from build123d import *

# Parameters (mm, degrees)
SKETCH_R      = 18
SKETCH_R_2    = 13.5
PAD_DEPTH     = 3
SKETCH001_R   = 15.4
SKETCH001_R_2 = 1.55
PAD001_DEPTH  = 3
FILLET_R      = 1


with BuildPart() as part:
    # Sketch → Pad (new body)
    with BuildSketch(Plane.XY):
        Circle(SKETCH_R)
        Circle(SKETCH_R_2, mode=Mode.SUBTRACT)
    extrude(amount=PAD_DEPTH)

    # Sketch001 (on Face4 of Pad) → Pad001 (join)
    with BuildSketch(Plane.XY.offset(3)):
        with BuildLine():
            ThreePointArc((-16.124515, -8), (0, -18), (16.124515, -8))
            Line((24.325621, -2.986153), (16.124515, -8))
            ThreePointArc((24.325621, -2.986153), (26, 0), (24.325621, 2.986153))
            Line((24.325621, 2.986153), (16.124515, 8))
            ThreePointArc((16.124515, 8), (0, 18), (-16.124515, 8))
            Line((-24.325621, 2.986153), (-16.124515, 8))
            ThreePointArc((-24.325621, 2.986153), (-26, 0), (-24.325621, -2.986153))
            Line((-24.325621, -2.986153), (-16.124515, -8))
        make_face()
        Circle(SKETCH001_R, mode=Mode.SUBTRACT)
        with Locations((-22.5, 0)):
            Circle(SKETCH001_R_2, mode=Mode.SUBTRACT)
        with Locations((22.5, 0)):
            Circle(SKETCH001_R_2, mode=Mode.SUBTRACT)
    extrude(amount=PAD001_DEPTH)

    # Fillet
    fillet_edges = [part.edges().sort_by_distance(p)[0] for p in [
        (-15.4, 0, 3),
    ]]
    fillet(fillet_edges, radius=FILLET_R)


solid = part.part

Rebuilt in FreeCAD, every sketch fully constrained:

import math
import FreeCAD as App
import Part
import Sketcher
from FreeCAD import Vector
Q = App.Units.Quantity


def edges_at(feature, points):
    """Names of the edges that pass closest to the given points."""
    edges = feature.Shape.Edges
    near = lambda p: min(range(len(edges)), key=lambda i: edges[i].distToShape(Part.Vertex(*p))[0])
    return sorted({f"Edge{near(p) + 1}" for p in points})

doc = App.newDocument("Part")
params = doc.addObject("Spreadsheet::Sheet", "Params")
for row, (alias, value) in enumerate([
    ("sketch1_diameter", "36 mm"),
    ("sketch1_diameter2", "27 mm"),
    ("pad1_length", "3 mm"),
    ("sketch2_radius", "17.999999 mm"),
    ("sketch2_diameter", "3.1 mm"),
    ("sketch2_diameter2", "30.8 mm"),
    ("sketch2_radius2", "3.500001 mm"),
    ("pad2_length", "3 mm"),
    ("fillet_radius", "1 mm"),
], start=1):
    params.set(f"A{row}", alias)
    params.set(f"B{row}", "=" + value)
    params.setAlias(f"B{row}", alias)

body = doc.addObject("PartDesign::Body", "Body")

sketch1 = body.newObject("Sketcher::SketchObject", "Sketch")
sketch1.AttachmentSupport = (doc.getObject("XY_Plane"), [""])
sketch1.MapMode = "FlatFace"
sketch1.addGeometry(Part.Circle(Vector(0, 0, 0), Vector(0, 0, 1), 18), False)
sketch1.addGeometry(Part.Circle(Vector(0, 0, 0), Vector(0, 0, 1), 14), False)
sketch1.addConstraint(Sketcher.Constraint("Coincident", 0, 3, -1, 1))
sketch1.addConstraint(Sketcher.Constraint("Coincident", 1, 3, -1, 1))
sketch1.addConstraint(Sketcher.Constraint("Diameter", 0, Q("36 mm")))
sketch1.addConstraint(Sketcher.Constraint("Diameter", 1, Q("27 mm")))
sketch1.setExpression("Constraints[2]", "Params.sketch1_diameter")
sketch1.setExpression("Constraints[3]", "Params.sketch1_diameter2")
pad1 = body.newObject("PartDesign::Pad", "Pad")
pad1.Profile = sketch1
pad1.setExpression("Length", "Params.pad1_length")

sketch2 = body.newObject("Sketcher::SketchObject", "Sketch001")
sketch2.AttachmentSupport = (doc.getObject("XY_Plane"), [""])
sketch2.MapMode = "FlatFace"
sketch2.AttachmentOffset = App.Placement(Vector(0, 0, 3), App.Rotation())
sketch2.addGeometry(Part.ArcOfCircle(Part.Circle(Vector(0, 0, 0), Vector(0, 0, 1), 18), math.radians(-154), math.radians(-26)), False)
sketch2.addGeometry(Part.LineSegment(Vector(16.1, -8, 0), Vector(24.3, -3, 0)), False)
sketch2.addGeometry(Part.ArcOfCircle(Part.Circle(Vector(22.5, 0, 0), Vector(0, 0, 1), 3.5), math.radians(-59), math.radians(59)), False)
sketch2.addGeometry(Part.LineSegment(Vector(24.3, 3, 0), Vector(16.1, 8, 0)), False)
sketch2.addGeometry(Part.ArcOfCircle(Part.Circle(Vector(0, 0, 0), Vector(0, 0, 1), 18), math.radians(26), math.radians(154)), False)
sketch2.addGeometry(Part.LineSegment(Vector(-16.1, 8, 0), Vector(-24.3, 3, 0)), False)
sketch2.addGeometry(Part.ArcOfCircle(Part.Circle(Vector(-22.5, 0, 0), Vector(0, 0, 1), 3.5), math.radians(121), math.radians(239)), False)
sketch2.addGeometry(Part.LineSegment(Vector(-24.3, -3, 0), Vector(-16.1, -8, 0)), False)
sketch2.addGeometry(Part.Circle(Vector(-22.5, 0, 0), Vector(0, 0, 1), 1.6), False)
sketch2.addGeometry(Part.Circle(Vector(0, 0, 0), Vector(0, 0, 1), 15.4), False)
sketch2.addGeometry(Part.Circle(Vector(22.5, 0, 0), Vector(0, 0, 1), 1.6), False)
sketch2.addConstraint(Sketcher.Constraint("Coincident", 0, 2, 1, 1))
sketch2.addConstraint(Sketcher.Constraint("Tangent", 1, 2, 2, 1))
sketch2.addConstraint(Sketcher.Constraint("Tangent", 2, 2, 3, 1))
sketch2.addConstraint(Sketcher.Constraint("Coincident", 3, 2, 4, 1))
sketch2.addConstraint(Sketcher.Constraint("Coincident", 4, 2, 5, 1))
sketch2.addConstraint(Sketcher.Constraint("Tangent", 5, 2, 6, 1))
sketch2.addConstraint(Sketcher.Constraint("Tangent", 6, 2, 7, 1))
sketch2.addConstraint(Sketcher.Constraint("Coincident", 7, 2, 0, 1))
sketch2.addConstraint(Sketcher.Constraint("Coincident", 0, 3, -1, 1))
sketch2.addConstraint(Sketcher.Constraint("Coincident", 4, 3, -1, 1))
sketch2.addConstraint(Sketcher.Constraint("Coincident", 9, 3, -1, 1))
sketch2.addConstraint(Sketcher.Constraint("Coincident", 8, 3, 6, 3))
sketch2.addConstraint(Sketcher.Constraint("Coincident", 10, 3, 2, 3))
sketch2.addConstraint(Sketcher.Constraint("Equal", 0, 4))
sketch2.addConstraint(Sketcher.Constraint("Equal", 2, 6))
sketch2.addConstraint(Sketcher.Constraint("Equal", 8, 10))
sketch2.addConstraint(Sketcher.Constraint("Symmetric", 2, 3, 6, 3, -1, 1))
sketch2.addConstraint(Sketcher.Constraint("Symmetric", 2, 2, 5, 2, -2))
sketch2.addConstraint(Sketcher.Constraint("Parallel", 1, 5))
sketch2.addConstraint(Sketcher.Constraint("Parallel", 3, 7))
sketch2.addConstraint(Sketcher.Constraint("Radius", 0, Q("17.999999 mm")))
sketch2.addConstraint(Sketcher.Constraint("Diameter", 8, Q("3.1 mm")))
sketch2.addConstraint(Sketcher.Constraint("Diameter", 9, Q("30.8 mm")))
sketch2.addConstraint(Sketcher.Constraint("Radius", 2, Q("3.500001 mm")))
sketch2.addConstraint(Sketcher.Constraint("DistanceY", 0, 2, -1, 1, Q("8 mm")))
sketch2.addConstraint(Sketcher.Constraint("DistanceX", 6, 3, 2, 3, Q("44.999999 mm")))
sketch2.setExpression("Constraints[20]", "Params.sketch2_radius")
sketch2.setExpression("Constraints[21]", "Params.sketch2_diameter")
sketch2.setExpression("Constraints[22]", "Params.sketch2_diameter2")
sketch2.setExpression("Constraints[23]", "Params.sketch2_radius2")
pad2 = body.newObject("PartDesign::Pad", "Pad001")
pad2.Profile = sketch2
pad2.setExpression("Length", "Params.pad2_length")
doc.recompute()

fillet = body.newObject("PartDesign::Fillet", "Fillet")
fillet.Base = (pad2, edges_at(pad2, [(-15.4, 0, 3)]))
fillet.setExpression("Radius", "Params.fillet_radius")

doc.recompute()
